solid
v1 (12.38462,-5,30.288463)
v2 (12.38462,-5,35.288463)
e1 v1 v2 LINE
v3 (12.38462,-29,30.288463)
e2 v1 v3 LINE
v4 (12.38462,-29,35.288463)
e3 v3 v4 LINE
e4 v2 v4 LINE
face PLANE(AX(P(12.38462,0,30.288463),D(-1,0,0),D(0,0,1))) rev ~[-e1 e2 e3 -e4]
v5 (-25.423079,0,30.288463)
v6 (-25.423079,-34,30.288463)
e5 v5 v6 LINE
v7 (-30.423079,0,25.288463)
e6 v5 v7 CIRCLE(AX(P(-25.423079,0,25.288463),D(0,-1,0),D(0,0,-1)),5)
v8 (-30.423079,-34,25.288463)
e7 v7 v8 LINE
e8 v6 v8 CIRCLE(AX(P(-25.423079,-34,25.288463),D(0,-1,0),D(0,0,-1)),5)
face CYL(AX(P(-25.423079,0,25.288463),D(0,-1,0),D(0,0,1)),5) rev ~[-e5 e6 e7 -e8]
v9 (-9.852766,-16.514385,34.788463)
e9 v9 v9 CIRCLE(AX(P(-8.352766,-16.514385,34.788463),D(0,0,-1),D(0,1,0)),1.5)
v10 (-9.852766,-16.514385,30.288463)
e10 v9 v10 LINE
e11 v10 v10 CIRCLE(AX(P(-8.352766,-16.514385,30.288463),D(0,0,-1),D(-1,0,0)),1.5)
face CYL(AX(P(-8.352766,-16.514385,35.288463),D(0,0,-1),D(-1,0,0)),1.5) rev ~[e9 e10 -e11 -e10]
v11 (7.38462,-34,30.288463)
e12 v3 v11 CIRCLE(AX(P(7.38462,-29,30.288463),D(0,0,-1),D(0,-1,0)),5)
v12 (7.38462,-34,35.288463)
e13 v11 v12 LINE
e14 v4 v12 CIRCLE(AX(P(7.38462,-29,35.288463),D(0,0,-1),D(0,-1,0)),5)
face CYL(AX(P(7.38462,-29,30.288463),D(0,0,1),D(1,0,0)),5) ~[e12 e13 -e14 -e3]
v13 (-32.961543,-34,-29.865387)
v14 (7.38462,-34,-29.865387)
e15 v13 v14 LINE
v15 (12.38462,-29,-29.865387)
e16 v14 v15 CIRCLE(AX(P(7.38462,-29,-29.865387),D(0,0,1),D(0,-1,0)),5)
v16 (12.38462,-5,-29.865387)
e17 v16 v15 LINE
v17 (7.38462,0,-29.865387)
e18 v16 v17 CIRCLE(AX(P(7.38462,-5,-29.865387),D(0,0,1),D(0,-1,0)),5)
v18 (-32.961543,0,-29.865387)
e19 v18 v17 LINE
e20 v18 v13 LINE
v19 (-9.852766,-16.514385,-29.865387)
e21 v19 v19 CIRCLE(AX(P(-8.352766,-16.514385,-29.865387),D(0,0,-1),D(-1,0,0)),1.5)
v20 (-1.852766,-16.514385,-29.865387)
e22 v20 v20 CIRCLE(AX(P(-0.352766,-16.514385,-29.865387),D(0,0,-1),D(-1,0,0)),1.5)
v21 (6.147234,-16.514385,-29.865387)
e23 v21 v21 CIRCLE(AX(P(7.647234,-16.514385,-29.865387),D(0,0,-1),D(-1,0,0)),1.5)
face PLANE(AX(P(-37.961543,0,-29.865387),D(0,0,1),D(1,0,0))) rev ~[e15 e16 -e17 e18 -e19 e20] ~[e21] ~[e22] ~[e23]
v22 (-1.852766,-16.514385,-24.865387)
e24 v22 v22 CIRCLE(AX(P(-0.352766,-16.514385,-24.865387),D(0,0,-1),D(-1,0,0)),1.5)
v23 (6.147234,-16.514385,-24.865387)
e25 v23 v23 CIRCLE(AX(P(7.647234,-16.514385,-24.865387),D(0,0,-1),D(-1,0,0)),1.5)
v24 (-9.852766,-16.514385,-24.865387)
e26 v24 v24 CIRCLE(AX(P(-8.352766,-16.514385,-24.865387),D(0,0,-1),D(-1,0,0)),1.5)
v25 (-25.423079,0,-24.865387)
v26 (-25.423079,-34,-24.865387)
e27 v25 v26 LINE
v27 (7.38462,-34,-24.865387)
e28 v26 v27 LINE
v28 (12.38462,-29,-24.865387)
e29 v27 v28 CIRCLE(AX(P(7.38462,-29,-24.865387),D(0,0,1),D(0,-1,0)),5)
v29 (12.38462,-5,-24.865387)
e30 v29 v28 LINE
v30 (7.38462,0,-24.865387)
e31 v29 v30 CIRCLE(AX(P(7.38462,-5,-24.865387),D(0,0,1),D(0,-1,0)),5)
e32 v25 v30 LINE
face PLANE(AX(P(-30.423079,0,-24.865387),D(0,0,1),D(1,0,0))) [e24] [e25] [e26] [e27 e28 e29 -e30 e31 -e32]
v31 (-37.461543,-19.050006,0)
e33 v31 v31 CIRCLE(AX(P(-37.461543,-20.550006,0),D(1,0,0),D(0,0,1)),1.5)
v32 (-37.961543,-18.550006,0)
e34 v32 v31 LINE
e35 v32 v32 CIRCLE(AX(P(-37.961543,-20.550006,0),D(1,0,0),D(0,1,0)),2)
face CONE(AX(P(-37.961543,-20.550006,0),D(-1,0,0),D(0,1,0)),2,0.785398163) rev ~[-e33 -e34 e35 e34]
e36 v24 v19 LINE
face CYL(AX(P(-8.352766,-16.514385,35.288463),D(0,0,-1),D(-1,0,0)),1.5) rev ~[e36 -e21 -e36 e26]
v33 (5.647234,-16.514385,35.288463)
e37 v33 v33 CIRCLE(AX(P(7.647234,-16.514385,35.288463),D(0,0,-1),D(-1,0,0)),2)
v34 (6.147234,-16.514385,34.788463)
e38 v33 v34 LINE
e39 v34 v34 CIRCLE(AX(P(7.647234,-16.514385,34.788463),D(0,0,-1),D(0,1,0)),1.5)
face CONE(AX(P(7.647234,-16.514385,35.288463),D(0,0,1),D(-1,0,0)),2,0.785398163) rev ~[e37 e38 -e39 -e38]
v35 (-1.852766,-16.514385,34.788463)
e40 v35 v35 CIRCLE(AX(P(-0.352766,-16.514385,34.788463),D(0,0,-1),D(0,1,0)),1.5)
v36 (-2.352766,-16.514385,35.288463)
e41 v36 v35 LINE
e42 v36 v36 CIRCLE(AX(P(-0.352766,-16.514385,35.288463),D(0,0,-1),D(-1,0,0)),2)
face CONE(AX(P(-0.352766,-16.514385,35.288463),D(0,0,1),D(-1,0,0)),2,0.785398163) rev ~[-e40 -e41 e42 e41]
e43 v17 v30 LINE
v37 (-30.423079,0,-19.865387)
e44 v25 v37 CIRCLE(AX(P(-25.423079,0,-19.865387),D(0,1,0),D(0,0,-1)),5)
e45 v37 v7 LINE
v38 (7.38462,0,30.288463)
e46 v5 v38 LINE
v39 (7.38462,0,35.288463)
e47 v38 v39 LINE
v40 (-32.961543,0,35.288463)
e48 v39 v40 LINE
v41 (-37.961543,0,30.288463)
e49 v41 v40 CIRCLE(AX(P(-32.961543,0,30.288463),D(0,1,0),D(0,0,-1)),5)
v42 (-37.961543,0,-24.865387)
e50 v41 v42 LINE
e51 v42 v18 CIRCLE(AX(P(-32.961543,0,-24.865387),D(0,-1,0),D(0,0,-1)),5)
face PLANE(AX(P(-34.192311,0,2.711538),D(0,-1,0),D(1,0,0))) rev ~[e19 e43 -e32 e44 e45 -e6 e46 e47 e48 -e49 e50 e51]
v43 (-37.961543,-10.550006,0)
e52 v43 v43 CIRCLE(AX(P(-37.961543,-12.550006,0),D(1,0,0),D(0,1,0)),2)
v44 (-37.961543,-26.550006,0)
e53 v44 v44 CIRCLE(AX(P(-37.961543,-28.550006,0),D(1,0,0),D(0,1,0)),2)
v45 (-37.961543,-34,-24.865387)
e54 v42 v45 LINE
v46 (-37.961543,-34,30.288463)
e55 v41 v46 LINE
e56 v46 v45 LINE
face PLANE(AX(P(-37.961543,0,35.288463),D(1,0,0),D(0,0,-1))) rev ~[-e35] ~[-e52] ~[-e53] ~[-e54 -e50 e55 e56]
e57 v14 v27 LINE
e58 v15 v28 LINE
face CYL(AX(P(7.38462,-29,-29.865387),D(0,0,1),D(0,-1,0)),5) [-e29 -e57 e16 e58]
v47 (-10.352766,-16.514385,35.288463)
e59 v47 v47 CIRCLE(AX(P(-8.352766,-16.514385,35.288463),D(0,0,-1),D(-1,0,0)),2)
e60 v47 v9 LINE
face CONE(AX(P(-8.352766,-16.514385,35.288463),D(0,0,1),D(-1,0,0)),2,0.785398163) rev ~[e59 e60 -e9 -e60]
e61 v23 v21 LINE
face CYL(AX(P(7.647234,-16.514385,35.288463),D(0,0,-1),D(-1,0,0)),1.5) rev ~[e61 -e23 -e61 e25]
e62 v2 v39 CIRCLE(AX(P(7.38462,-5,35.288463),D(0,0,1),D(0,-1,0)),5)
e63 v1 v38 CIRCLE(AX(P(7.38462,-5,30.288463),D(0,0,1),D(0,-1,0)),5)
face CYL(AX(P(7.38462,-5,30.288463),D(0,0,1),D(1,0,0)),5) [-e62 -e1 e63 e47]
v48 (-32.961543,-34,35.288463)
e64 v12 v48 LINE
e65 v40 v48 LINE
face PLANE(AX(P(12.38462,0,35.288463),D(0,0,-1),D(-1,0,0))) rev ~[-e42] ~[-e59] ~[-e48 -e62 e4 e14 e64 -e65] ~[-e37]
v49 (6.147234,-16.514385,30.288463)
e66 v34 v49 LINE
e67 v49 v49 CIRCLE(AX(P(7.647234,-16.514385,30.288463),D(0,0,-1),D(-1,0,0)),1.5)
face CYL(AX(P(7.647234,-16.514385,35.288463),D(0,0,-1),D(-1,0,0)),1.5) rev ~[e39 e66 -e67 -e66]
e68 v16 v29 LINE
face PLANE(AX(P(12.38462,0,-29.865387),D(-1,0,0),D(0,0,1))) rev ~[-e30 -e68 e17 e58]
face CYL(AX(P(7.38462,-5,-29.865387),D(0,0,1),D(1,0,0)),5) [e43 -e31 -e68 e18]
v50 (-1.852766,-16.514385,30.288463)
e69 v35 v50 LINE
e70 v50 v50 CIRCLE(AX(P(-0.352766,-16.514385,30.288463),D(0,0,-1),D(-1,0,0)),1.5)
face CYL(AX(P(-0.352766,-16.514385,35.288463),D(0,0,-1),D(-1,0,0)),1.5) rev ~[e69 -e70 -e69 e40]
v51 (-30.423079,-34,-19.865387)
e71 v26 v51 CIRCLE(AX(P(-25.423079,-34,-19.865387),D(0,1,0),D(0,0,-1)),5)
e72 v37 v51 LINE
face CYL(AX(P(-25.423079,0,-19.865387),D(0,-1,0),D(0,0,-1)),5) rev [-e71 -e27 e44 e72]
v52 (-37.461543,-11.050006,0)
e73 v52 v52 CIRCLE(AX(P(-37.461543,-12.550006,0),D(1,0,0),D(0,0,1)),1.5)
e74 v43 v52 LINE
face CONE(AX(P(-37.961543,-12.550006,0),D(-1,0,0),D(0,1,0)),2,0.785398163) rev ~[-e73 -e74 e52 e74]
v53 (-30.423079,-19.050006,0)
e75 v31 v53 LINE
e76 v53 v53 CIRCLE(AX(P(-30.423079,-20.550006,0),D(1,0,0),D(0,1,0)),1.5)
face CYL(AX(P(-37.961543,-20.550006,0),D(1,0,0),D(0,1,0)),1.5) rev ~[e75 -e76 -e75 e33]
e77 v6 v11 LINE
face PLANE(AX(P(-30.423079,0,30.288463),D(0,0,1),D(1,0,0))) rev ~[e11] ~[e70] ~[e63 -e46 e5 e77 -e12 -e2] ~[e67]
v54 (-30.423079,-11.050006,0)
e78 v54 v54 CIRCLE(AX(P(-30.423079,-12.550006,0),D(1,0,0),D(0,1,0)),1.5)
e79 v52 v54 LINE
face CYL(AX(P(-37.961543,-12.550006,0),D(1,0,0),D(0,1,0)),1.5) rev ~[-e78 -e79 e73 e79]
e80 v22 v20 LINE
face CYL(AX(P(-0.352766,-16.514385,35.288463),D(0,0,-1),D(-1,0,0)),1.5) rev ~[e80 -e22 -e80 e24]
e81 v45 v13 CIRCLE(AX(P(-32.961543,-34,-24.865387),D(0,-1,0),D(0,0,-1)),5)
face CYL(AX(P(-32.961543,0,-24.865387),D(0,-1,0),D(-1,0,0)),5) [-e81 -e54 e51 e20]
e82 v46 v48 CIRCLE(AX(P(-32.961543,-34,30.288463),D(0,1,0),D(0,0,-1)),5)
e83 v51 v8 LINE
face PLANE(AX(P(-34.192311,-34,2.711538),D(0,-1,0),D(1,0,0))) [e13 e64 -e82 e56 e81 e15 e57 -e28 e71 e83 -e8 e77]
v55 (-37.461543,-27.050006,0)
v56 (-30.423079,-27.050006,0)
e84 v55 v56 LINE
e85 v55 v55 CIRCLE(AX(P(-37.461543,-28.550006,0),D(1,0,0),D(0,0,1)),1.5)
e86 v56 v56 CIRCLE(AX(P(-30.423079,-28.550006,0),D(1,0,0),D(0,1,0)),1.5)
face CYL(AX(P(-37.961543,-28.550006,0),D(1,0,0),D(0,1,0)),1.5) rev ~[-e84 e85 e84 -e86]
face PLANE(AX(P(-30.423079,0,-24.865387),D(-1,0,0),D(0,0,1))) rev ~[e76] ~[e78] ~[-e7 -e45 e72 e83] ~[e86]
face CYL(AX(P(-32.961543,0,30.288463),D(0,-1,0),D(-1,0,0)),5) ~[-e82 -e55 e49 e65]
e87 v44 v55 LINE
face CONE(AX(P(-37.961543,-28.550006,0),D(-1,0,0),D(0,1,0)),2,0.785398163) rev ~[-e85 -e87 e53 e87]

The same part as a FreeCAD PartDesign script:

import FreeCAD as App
import Part
import Sketcher


def edges_at(feature, points):
    """Names of the edges that pass closest to the given points."""
    edges = feature.Shape.Edges
    near = lambda p: min(range(len(edges)), key=lambda i: edges[i].distToShape(Part.Vertex(*p))[0])
    return sorted({f"Edge{near(p) + 1}" for p in points})


def add_polygon(sketch, points):
    """Adds a closed chain of lines whose ends are joined by coincident constraints."""
    first, n = sketch.GeometryCount, len(points)
    for a, b in zip(points, points[1:] + points[:1]):
        sketch.addGeometry(Part.LineSegment(App.Vector(*a, 0), App.Vector(*b, 0)), False)
    for i in range(n):
        sketch.addConstraint(Sketcher.Constraint("Coincident", first + i, 2, first + (i + 1) % n, 1))

doc = App.newDocument("Part")
params = doc.addObject("Spreadsheet::Sheet", "Params")
for row, (alias, value) in enumerate([
    ("sketch1_height", "5 mm"),
    ("pad1_length", "34 mm"),
    ("fillet_radius", "5 mm"),
    ("fillet2_radius", "5 mm"),
    ("fillet3_radius", "5 mm"),
    ("fillet4_radius", "5 mm"),
    ("fillet5_radius", "5 mm"),
    ("fillet6_radius", "5 mm"),
    ("sketch2_diameter", "3 mm"),
    ("hole_diameter", "3 mm"),
    ("hole_csink_diameter", "4 mm"),
    ("sketch3_diameter", "3 mm"),
    ("hole2_diameter", "3 mm"),
    ("hole2_csink_diameter", "4 mm"),
], start=1):
    params.set(f"A{row}", alias)
    params.set(f"B{row}", "=" + value)
    params.setAlias(f"B{row}", alias)

body = doc.addObject("PartDesign::Body", "Body")

# Sketch on XZ plane
sketch1 = doc.addObject("Sketcher::SketchObject", "Sketch")
body.addObject(sketch1)
sketch1.AttachmentSupport = (doc.XZ_Plane, [""])
sketch1.MapMode = "FlatFace"
add_polygon(sketch1, [(-38, 35), (-38, -30), (12, -30), (12, -25), (-30, -25), (-30, 30), (12, 30), (12, 35)])  # lines 0-7
sketch1.addConstraint([
    Sketcher.Constraint("Vertical", 0),
    Sketcher.Constraint("Horizontal", 1),
    Sketcher.Constraint("Vertical", 2),
    Sketcher.Constraint("Horizontal", 3),
    Sketcher.Constraint("Vertical", 4),
    Sketcher.Constraint("Horizontal", 5),
    Sketcher.Constraint("Vertical", 6),
    Sketcher.Constraint("Horizontal", 7),
    Sketcher.Constraint("Vertical", 2, 2, 5, 2),
    Sketcher.Constraint("Equal", 2, 6),
    Sketcher.Constraint("DistanceY", 2, 1, 2, 2, 5.0),
    Sketcher.Constraint("DistanceX", 3, 2, 3, 1, 42.807698),
    Sketcher.Constraint("DistanceY", 0, 2, 0, 1, 65.15385),
    Sketcher.Constraint("DistanceX", 1, 1, 1, 2, 50.346162),
    Sketcher.Constraint("DistanceX", -1, 1, 1, 2, 12.38462),
    Sketcher.Constraint("DistanceY", 0, 2, -1, 1, 29.865387),
])
sketch1.setExpression("Constraints[18]", "Params.sketch1_height")
pad1 = doc.addObject("PartDesign::Pad", "Pad")
body.addObject(pad1)
pad1.Profile = sketch1
pad1.setExpression("Length", "Params.pad1_length")
doc.recompute()

fillet = doc.addObject("PartDesign::Fillet", "Fillet")
body.addObject(fillet)
fillet.Base = (pad1, edges_at(pad1, [(12.385, -34, 32.788)]))
fillet.setExpression("Radius", "Params.fillet_radius")
doc.recompute()

fillet2 = doc.addObject("PartDesign::Fillet", "Fillet001")
body.addObject(fillet2)
fillet2.Base = (fillet, edges_at(fillet, [(12.385, 0, 32.788)]))
fillet2.setExpression("Radius", "Params.fillet2_radius")
doc.recompute()

fillet3 = doc.addObject("PartDesign::Fillet", "Fillet002")
body.addObject(fillet3)
fillet3.Base = (fillet2, edges_at(fillet2, [(12.385, -34, -27.365)]))
fillet3.setExpression("Radius", "Params.fillet3_radius")
doc.recompute()

fillet4 = doc.addObject("PartDesign::Fillet", "Fillet003")
body.addObject(fillet4)
fillet4.Base = (fillet3, edges_at(fillet3, [(12.385, 0, -27.365)]))
fillet4.setExpression("Radius", "Params.fillet4_radius")
doc.recompute()

fillet5 = doc.addObject("PartDesign::Fillet", "Fillet004")
body.addObject(fillet5)
fillet5.Base = (fillet4, edges_at(fillet4, [(-37.962, -17, 35.288)]))
fillet5.setExpression("Radius", "Params.fillet5_radius")
doc.recompute()

fillet6 = doc.addObject("PartDesign::Fillet", "Fillet005")
body.addObject(fillet6)
fillet6.Base = (fillet5, edges_at(fillet5, [(-30.423, -17, -24.865), (-30.423, -17, 30.288), (-37.962, -17, -29.865)]))
fillet6.setExpression("Radius", "Params.fillet6_radius")

# Sketch on YZ plane
sketch2 = doc.addObject("Sketcher::SketchObject", "Sketch001")
body.addObject(sketch2)
sketch2.AttachmentSupport = (doc.YZ_Plane, [""])
sketch2.MapMode = "FlatFace"
sketch2.AttachmentOffset = App.Placement(App.Vector(0, 0, -37.961543), App.Rotation())
sketch2.addGeometry([
    Part.Circle(App.Vector(-12.6, 0, 0), App.Vector(0, 0, 1), 1.5),
    Part.Circle(App.Vector(-20.6, 0, 0), App.Vector(0, 0, 1), 1.5),
    Part.Circle(App.Vector(-28.6, 0, 0), App.Vector(0, 0, 1), 1.5),
], False)
sketch2.addConstraint([
    Sketcher.Constraint("Equal", 0, 1),
    Sketcher.Constraint("Equal", 1, 2),
    Sketcher.Constraint("PointOnObject", 0, 3, -1),
    Sketcher.Constraint("PointOnObject", 1, 3, -1),
    Sketcher.Constraint("PointOnObject", 2, 3, -1),
    Sketcher.Constraint("Diameter", 0, 3.0),
    Sketcher.Constraint("DistanceX", 1, 3, 0, 3, 8.0),
    Sketcher.Constraint("DistanceX", 2, 3, 1, 3, 8.0),
    Sketcher.Constraint("DistanceX", 0, 3, -1, 1, 12.550006),
])
sketch2.setExpression("Constraints[5]", "Params.sketch2_diameter")
doc.recompute()
hole = doc.addObject("PartDesign::Hole", "Hole")
body.addObject(hole)
hole.Profile = sketch2
hole.ThreadType = "None"
hole.setExpression("Diameter", "Params.hole_diameter")
hole.DepthType = "ThroughAll"
hole.HoleCutType = "Countersink"
hole.setExpression("HoleCutDiameter", "Params.hole_csink_diameter")
hole.HoleCutCountersinkAngle = 90
hole.Reversed = True

# Sketch on XY plane
sketch3 = doc.addObject("Sketcher::SketchObject", "Sketch002")
body.addObject(sketch3)
sketch3.AttachmentSupport = (doc.XY_Plane, [""])
sketch3.MapMode = "FlatFace"
sketch3.AttachmentOffset = App.Placement(App.Vector(0, 0, 35.288463), App.Rotation())
sketch3.addGeometry([
    Part.Circle(App.Vector(-0.4, -16.5, 0), App.Vector(0, 0, 1), 1.5),
    Part.Circle(App.Vector(-8.4, -16.5, 0), App.Vector(0, 0, 1), 1.5),
    Part.Circle(App.Vector(7.6, -16.5, 0), App.Vector(0, 0, 1), 1.5),
], False)
sketch3.addConstraint([
    Sketcher.Constraint("Equal", 0, 1),
    Sketcher.Constraint("Equal", 1, 2),
    Sketcher.Constraint("Horizontal", 0, 3, 1, 3),
    Sketcher.Constraint("Horizontal", 1, 3, 2, 3),
    Sketcher.Constraint("Diameter", 0, 3.0),
    Sketcher.Constraint("DistanceX", 1, 3, 0, 3, 8.0),
    Sketcher.Constraint("DistanceX", 0, 3, 2, 3, 8.0),
    Sketcher.Constraint("DistanceX", 0, 3, -1, 1, 0.352766),
    Sketcher.Constraint("DistanceY", 0, 3, -1, 1, 16.514385),
])
sketch3.setExpression("Constraints[4]", "Params.sketch3_diameter")
doc.recompute()
hole2 = doc.addObject("PartDesign::Hole", "Hole001")
body.addObject(hole2)
hole2.Profile = sketch3
hole2.ThreadType = "None"
hole2.setExpression("Diameter", "Params.hole2_diameter")
hole2.DepthType = "ThroughAll"
hole2.HoleCutType = "Countersink"
hole2.setExpression("HoleCutDiameter", "Params.hole2_csink_diameter")
hole2.HoleCutCountersinkAngle = 90

doc.recompute()
